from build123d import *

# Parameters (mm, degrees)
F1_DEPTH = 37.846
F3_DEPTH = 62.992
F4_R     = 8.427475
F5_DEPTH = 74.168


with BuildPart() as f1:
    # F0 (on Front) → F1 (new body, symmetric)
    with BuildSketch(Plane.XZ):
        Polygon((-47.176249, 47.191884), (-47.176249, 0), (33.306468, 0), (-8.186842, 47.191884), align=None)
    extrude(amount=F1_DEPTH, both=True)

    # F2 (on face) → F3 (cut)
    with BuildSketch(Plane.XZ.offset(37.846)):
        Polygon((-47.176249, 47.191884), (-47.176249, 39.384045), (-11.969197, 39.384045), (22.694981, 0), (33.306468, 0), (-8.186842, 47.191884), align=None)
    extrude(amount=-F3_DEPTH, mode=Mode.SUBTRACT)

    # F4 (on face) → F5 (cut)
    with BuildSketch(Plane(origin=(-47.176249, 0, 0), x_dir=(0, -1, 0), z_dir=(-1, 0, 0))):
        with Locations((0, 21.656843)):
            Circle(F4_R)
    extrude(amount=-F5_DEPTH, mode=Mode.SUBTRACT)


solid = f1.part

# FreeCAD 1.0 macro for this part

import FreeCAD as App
import Part
import Sketcher
from FreeCAD import Vector
Q = App.Units.Quantity


def add_polygon(sketch, points):
    """Adds a closed chain of lines whose ends are joined by coincident constraints."""
    first, n = sketch.GeometryCount, len(points)
    for a, b in zip(points, points[1:] + points[:1]):
        sketch.addGeometry(Part.LineSegment(App.Vector(*a, 0), App.Vector(*b, 0)), False)
    for i in range(n):
        sketch.addConstraint(Sketcher.Constraint("Coincident", first + i, 2, first + (i + 1) % n, 1))

doc = App.newDocument("Part")
body = doc.addObject("PartDesign::Body", "Body")

# Sketch on XZ plane
sketch1 = body.newObject("Sketcher::SketchObject", "Sketch")
sketch1.AttachmentSupport = (doc.getObject("XZ_Plane"), [""])
sketch1.MapMode = "FlatFace"
add_polygon(sketch1, [(-47, 47), (-47, 0), (33, 0), (-8, 47)])  # lines 0-3
sketch1.addConstraint([
    Sketcher.Constraint("Vertical", 0),
    Sketcher.Constraint("Horizontal", 1),
    Sketcher.Constraint("Horizontal", 3),
    Sketcher.Constraint("PointOnObject", 0, 2, -1),
    Sketcher.Constraint("Distance", 2, Q("62.839229 mm")),
    Sketcher.Constraint("DistanceX", 1, 1, 1, 2, Q("80.482717 mm")),
    Sketcher.Constraint("DistanceX", 3, 2, 3, 1, Q("38.989407 mm")),
    Sketcher.Constraint("DistanceX", 0, 2, -1, 1, Q("47.176249 mm")),
])
pad1 = body.newObject("PartDesign::Pad", "Pad")
pad1.Profile = sketch1
pad1.Length = Q("2.98 in")
pad1.Midplane = True

# Sketch on XZ plane
sketch2 = body.newObject("Sketcher::SketchObject", "Sketch001")
sketch2.AttachmentSupport = (doc.getObject("XZ_Plane"), [""])
sketch2.MapMode = "FlatFace"
sketch2.AttachmentOffset = App.Placement(Vector(0, 0, 1.49 * 25.4), App.Rotation())
add_polygon(sketch2, [(-47, 47), (-47, 39), (-12, 39), (23, 0), (33, 0), (-8, 47)])  # lines 0-5
sketch2.addConstraint([
    Sketcher.Constraint("Vertical", 0),
    Sketcher.Constraint("Horizontal", 1),
    Sketcher.Constraint("Horizontal", 3),
    Sketcher.Constraint("Horizontal", 5),
    Sketcher.Constraint("PointOnObject", 2, 2, -1),
    Sketcher.Constraint("DistanceX", 1, 1, 1, 2, Q("35.207052 mm")),
    Sketcher.Constraint("DistanceY", 0, 2, 0, 1, Q("7.807839 mm")),
    Sketcher.Constraint("Distance", 2, Q("52.466258 mm")),
    Sketcher.Constraint("Distance", 4, Q("62.839229 mm")),
    Sketcher.Constraint("DistanceX", 3, 1, 3, 2, Q("10.611487 mm")),
    Sketcher.Constraint("DistanceX", 0, 2, -1, 1, Q("47.176249 mm")),
    Sketcher.Constraint("DistanceX", -1, 1, 2, 2, Q("22.694981 mm")),
])
pocket1 = body.newObject("PartDesign::Pocket", "Pocket")
pocket1.Profile = sketch2
pocket1.Length = Q("2.48 in")

# Sketch on YZ plane
sketch3 = body.newObject("Sketcher::SketchObject", "Sketch002")
sketch3.AttachmentSupport = (doc.getObject("YZ_Plane"), [""])
sketch3.MapMode = "FlatFace"
sketch3.AttachmentOffset = App.Placement(Vector(0, 0, -47.176249), App.Rotation())
sketch3.addGeometry(Part.Circle(Vector(0, 22, 0), Vector(0, 0, 1), 8), False)
sketch3.addConstraint([
    Sketcher.Constraint("PointOnObject", 0, 3, -2),
    Sketcher.Constraint("Diameter", 0, Q("16.85495 mm")),
    Sketcher.Constraint("DistanceY", -1, 1, 0, 3, Q("21.656843 mm")),
])
pocket2 = body.newObject("PartDesign::Pocket", "Pocket001")
pocket2.Profile = sketch3
pocket2.Length = Q("2.92 in")
pocket2.Reversed = True

doc.recompute()
